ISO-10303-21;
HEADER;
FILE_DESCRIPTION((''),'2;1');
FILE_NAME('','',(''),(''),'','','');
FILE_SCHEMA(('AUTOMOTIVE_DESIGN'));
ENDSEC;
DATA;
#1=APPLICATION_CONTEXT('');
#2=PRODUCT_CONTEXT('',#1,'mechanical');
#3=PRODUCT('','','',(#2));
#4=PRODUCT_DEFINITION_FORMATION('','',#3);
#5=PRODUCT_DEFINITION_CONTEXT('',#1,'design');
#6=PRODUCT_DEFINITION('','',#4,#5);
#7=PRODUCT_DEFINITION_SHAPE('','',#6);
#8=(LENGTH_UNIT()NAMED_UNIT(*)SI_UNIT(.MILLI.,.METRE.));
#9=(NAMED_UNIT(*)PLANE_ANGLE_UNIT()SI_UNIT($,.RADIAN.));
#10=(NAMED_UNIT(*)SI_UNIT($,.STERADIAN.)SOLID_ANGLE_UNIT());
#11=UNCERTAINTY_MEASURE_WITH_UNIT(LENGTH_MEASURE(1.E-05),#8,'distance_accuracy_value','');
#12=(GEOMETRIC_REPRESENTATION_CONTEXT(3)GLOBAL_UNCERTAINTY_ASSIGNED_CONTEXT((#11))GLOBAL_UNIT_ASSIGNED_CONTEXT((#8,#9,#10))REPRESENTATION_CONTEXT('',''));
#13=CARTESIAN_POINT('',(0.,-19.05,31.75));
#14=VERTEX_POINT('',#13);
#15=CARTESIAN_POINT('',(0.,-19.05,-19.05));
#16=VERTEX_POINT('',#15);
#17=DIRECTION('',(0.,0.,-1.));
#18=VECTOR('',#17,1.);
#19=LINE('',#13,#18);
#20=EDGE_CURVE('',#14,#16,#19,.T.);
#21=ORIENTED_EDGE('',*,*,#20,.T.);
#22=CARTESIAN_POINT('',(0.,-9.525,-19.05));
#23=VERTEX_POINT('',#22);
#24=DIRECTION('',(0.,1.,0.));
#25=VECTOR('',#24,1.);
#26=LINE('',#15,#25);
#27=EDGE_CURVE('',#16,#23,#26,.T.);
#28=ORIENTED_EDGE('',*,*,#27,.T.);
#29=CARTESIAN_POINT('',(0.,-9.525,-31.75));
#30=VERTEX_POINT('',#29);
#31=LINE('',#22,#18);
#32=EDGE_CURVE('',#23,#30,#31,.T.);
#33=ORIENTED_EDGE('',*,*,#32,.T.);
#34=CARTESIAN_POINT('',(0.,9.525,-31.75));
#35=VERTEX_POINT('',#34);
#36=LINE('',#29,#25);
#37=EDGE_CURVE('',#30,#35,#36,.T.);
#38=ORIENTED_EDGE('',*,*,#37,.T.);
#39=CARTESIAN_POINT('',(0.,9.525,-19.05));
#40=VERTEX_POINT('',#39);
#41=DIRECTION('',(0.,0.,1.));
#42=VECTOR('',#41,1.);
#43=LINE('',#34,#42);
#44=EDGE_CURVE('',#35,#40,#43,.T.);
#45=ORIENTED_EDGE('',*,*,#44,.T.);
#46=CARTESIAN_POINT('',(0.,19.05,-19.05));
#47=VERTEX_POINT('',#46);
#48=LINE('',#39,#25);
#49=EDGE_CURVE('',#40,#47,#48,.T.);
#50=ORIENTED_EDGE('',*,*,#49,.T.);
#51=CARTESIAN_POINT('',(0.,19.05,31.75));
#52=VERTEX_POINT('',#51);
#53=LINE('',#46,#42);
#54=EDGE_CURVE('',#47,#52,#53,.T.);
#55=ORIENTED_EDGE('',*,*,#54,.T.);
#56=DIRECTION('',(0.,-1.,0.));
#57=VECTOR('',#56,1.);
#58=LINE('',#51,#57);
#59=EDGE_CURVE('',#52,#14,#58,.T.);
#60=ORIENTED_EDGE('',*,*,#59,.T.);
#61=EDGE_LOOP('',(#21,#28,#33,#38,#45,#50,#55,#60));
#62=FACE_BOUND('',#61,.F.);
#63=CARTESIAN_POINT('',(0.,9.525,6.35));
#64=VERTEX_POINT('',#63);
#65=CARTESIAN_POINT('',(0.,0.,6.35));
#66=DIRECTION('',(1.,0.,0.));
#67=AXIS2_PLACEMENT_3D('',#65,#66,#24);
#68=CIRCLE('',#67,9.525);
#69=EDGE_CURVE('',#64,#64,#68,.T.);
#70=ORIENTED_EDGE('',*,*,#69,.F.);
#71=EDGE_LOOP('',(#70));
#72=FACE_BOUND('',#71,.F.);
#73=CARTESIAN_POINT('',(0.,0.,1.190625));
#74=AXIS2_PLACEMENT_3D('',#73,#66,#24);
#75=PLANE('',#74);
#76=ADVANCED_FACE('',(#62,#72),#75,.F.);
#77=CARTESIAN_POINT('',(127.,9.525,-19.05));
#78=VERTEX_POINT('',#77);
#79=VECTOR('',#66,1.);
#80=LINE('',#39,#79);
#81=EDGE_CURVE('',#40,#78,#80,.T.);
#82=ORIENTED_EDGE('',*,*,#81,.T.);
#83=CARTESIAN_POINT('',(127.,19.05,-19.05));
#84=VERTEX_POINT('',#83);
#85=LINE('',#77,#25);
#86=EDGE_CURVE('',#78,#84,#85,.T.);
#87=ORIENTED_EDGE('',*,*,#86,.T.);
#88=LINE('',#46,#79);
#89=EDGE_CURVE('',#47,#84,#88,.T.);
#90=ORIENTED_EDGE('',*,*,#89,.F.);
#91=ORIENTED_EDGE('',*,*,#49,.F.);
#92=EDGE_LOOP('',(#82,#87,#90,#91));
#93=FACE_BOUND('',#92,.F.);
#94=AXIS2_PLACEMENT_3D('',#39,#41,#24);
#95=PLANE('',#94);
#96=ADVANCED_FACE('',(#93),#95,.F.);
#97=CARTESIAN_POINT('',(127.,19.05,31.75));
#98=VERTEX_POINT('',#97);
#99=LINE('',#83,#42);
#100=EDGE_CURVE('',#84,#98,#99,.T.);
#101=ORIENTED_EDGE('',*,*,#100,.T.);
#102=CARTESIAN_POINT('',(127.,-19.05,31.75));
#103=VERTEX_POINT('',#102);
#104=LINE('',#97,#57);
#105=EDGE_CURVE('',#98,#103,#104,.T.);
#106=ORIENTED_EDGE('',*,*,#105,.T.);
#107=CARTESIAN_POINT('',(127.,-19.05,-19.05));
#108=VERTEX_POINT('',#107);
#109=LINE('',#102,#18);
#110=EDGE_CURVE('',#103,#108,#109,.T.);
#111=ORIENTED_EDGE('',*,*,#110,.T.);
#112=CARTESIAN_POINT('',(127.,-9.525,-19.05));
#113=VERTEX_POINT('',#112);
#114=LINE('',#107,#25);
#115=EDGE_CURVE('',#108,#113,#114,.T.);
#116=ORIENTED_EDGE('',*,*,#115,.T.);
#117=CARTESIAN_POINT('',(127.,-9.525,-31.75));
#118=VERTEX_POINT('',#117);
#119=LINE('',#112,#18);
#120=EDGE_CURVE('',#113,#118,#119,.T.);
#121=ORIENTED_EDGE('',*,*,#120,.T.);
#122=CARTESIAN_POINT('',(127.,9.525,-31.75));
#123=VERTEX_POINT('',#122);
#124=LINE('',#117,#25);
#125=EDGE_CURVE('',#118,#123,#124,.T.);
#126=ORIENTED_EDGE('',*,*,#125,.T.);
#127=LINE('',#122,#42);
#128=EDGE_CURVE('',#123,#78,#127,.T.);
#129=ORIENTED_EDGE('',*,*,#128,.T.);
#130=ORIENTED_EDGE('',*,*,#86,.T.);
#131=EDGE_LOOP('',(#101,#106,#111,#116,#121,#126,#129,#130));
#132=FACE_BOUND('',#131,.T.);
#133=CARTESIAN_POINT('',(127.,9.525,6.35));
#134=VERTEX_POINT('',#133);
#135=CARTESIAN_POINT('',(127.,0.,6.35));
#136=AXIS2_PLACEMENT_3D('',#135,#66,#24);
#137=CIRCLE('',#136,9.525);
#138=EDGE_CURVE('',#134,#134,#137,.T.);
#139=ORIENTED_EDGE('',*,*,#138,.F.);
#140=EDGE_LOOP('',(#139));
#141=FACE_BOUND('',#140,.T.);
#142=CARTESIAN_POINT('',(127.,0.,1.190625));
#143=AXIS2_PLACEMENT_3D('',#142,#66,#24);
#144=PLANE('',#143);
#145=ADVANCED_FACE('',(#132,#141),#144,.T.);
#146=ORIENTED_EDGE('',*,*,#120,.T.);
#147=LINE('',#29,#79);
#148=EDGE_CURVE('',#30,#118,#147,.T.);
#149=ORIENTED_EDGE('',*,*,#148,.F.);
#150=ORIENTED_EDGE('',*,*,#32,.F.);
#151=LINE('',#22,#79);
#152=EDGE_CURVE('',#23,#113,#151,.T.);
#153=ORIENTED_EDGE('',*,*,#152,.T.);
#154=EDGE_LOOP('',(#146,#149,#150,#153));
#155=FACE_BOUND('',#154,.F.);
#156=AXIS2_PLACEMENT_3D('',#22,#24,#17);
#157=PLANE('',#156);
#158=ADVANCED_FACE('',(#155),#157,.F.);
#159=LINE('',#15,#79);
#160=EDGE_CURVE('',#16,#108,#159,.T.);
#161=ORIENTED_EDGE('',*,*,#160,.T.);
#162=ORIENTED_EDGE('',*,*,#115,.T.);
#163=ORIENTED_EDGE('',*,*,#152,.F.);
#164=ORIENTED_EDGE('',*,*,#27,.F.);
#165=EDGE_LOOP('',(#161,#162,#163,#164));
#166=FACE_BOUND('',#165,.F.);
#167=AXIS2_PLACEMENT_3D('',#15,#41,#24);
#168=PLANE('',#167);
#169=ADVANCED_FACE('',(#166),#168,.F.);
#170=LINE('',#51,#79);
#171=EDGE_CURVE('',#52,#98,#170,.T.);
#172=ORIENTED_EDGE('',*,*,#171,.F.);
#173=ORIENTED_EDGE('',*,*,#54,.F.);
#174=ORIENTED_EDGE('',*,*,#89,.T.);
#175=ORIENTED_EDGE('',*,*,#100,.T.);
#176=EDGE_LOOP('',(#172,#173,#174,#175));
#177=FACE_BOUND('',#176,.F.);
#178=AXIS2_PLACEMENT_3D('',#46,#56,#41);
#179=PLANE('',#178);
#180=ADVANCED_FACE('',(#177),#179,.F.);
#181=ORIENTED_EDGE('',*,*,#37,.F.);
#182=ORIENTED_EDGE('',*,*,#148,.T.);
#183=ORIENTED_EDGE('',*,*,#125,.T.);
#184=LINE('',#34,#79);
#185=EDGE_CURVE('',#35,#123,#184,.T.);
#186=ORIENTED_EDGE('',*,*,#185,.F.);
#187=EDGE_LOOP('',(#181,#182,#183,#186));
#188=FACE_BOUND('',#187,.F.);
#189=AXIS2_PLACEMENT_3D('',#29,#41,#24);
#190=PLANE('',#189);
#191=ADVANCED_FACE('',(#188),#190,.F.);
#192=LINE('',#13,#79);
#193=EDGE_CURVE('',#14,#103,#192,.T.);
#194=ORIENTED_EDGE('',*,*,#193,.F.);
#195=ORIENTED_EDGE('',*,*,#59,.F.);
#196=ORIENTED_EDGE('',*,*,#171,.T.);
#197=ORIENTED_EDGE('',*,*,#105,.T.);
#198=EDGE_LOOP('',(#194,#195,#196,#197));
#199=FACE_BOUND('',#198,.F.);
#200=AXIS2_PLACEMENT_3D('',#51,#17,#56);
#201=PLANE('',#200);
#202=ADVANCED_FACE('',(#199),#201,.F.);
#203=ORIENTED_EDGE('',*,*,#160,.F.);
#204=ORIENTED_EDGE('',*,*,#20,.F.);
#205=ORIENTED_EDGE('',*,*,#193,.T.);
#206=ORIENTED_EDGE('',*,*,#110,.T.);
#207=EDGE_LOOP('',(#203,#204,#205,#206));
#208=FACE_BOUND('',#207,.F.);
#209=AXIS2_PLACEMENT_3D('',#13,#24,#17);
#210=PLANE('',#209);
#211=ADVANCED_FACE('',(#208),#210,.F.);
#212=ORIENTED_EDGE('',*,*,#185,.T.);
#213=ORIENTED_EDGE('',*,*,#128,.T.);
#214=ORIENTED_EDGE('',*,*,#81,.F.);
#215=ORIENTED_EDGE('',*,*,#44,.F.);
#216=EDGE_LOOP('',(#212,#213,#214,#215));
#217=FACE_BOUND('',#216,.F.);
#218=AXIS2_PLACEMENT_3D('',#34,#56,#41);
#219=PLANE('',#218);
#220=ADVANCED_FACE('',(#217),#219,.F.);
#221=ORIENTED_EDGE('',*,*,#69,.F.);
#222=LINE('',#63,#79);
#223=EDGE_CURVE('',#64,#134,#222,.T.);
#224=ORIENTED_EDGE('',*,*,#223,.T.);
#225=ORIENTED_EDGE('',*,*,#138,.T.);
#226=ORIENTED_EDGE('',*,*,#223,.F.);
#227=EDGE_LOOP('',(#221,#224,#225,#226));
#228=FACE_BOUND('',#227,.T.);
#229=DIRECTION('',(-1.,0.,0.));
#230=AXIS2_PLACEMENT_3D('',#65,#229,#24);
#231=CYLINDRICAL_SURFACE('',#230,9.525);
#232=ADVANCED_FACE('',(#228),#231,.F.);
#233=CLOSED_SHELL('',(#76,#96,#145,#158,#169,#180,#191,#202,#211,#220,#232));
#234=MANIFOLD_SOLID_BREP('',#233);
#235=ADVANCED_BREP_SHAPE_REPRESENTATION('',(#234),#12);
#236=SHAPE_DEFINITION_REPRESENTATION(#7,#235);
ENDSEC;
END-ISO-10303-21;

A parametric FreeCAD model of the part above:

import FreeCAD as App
import Part
import Sketcher
from FreeCAD import Vector
Q = App.Units.Quantity

doc = App.newDocument("Part")
body = doc.addObject("PartDesign::Body", "Body")

# Sketch on YZ plane
sketch1 = doc.addObject("Sketcher::SketchObject", "Sketch")
body.addObject(sketch1)
sketch1.AttachmentSupport = (doc.YZ_Plane, [""])
sketch1.MapMode = "FlatFace"
sketch1.addGeometry([
    Part.LineSegment(Vector(-9.525, -19.05, 0), Vector(-9.525, -31.75, 0)),  # 0
    Part.LineSegment(Vector(-9.525, -31.75, 0), Vector(9.525, -31.75, 0)),  # 1
    Part.LineSegment(Vector(9.525, -31.75, 0), Vector(9.525, -19.05, 0)),  # 2
    Part.LineSegment(Vector(9.525, -19.05, 0), Vector(19.05, -19.05, 0)),  # 3
    Part.LineSegment(Vector(19.05, -19.05, 0), Vector(19.05, 31.75, 0)),  # 4
    Part.LineSegment(Vector(19.05, 31.75, 0), Vector(-19.05, 31.75, 0)),  # 5
    Part.LineSegment(Vector(-19.05, 31.75, 0), Vector(-19.05, -19.05, 0)),  # 6
    Part.LineSegment(Vector(-19.05, -19.05, 0), Vector(-9.525, -19.05, 0)),  # 7
    Part.Circle(Vector(0, 6.35, 0), Vector(0, 0, 1), 9.525),  # 8
], False)
sketch1.addConstraint([
    Sketcher.Constraint("Coincident", 0, 2, 1, 1),
    Sketcher.Constraint("Coincident", 1, 2, 2, 1),
    Sketcher.Constraint("Coincident", 2, 2, 3, 1),
    Sketcher.Constraint("Coincident", 3, 2, 4, 1),
    Sketcher.Constraint("Coincident", 4, 2, 5, 1),
    Sketcher.Constraint("Coincident", 5, 2, 6, 1),
    Sketcher.Constraint("Coincident", 6, 2, 7, 1),
    Sketcher.Constraint("Coincident", 7, 2, 0, 1),
    Sketcher.Constraint("Vertical", 0),
    Sketcher.Constraint("Horizontal", 1),
    Sketcher.Constraint("Vertical", 2),
    Sketcher.Constraint("Horizontal", 3),
    Sketcher.Constraint("Vertical", 4),
    Sketcher.Constraint("Horizontal", 5),
    Sketcher.Constraint("Vertical", 6),
    Sketcher.Constraint("Horizontal", 7),
    Sketcher.Constraint("Symmetric", 3, 2, 6, 2, -2),
    Sketcher.Constraint("PointOnObject", 8, 3, -2),
    Sketcher.Constraint("Equal", 3, 7),
    Sketcher.Constraint("Diameter", 8, Q("0.75 in")),
    Sketcher.Constraint("DistanceY", 4, 1, 4, 2, Q("2 in")),
    Sketcher.Constraint("DistanceX", 5, 2, 5, 1, Q("1.5 in")),
    Sketcher.Constraint("DistanceY", 0, 2, 0, 1, Q("0.5 in")),
    Sketcher.Constraint("DistanceY", 2, 2, 8, 3, Q("1 in")),
    Sketcher.Constraint("DistanceX", 1, 1, 1, 2, Q("0.75 in")),
    Sketcher.Constraint("DistanceY", -1, 1, 8, 3, Q("0.25 in")),
])
pad1 = doc.addObject("PartDesign::Pad", "Pad")
body.addObject(pad1)
pad1.Profile = sketch1
pad1.Length = Q("5 in")

doc.recompute()
